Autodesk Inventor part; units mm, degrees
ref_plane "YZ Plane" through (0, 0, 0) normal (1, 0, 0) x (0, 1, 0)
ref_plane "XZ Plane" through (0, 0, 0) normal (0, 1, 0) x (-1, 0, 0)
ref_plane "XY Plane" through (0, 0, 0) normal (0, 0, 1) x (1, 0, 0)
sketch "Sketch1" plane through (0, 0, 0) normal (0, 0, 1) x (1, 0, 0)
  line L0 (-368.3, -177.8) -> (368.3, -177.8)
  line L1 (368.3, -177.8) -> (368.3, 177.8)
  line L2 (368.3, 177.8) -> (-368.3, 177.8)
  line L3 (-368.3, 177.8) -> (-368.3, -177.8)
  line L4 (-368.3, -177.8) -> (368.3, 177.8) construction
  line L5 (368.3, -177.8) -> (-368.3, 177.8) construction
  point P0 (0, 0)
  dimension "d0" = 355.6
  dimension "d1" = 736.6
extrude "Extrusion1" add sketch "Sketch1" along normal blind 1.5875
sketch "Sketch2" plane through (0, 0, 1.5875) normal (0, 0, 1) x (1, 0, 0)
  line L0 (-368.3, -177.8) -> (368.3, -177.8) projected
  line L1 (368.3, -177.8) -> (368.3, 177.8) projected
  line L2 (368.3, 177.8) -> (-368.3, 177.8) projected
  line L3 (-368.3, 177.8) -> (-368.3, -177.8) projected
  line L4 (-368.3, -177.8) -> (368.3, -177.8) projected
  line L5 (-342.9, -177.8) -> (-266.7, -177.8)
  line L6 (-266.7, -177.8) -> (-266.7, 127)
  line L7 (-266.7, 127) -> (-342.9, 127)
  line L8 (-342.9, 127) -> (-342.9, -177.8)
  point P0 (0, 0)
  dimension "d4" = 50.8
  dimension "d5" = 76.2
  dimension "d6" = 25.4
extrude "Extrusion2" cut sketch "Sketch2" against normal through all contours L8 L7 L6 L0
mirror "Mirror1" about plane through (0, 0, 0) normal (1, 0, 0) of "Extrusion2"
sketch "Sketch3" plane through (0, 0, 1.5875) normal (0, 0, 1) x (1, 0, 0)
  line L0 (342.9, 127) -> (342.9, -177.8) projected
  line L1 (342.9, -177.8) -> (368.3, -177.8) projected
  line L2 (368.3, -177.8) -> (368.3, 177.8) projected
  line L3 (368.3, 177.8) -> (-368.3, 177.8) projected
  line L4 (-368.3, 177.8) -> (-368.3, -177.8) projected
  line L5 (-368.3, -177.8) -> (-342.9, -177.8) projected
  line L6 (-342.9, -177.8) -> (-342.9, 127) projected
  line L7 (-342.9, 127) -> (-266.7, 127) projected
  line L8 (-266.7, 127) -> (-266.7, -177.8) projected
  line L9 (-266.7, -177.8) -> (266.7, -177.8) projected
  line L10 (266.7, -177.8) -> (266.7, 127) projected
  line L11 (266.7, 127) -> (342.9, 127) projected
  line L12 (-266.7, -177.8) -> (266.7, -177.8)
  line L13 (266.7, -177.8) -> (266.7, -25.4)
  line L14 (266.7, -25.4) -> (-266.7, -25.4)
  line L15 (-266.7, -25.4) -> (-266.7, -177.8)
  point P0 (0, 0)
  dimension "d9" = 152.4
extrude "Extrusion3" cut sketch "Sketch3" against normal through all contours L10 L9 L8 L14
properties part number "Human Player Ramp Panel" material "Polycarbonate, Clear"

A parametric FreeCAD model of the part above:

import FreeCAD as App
import Part
import Sketcher
from FreeCAD import Vector
Q = App.Units.Quantity


def add_polygon(sketch, points):
    """Adds a closed chain of lines whose ends are joined by coincident constraints."""
    first, n = sketch.GeometryCount, len(points)
    for a, b in zip(points, points[1:] + points[:1]):
        sketch.addGeometry(Part.LineSegment(App.Vector(*a, 0), App.Vector(*b, 0)), False)
    for i in range(n):
        sketch.addConstraint(Sketcher.Constraint("Coincident", first + i, 2, first + (i + 1) % n, 1))

doc = App.newDocument("Part")
body = doc.addObject("PartDesign::Body", "Body")

sketch1 = body.newObject("Sketcher::SketchObject", "Sketch")
sketch1.AttachmentSupport = (doc.getObject("XY_Plane"), [""])
sketch1.MapMode = "FlatFace"
add_polygon(sketch1, [(-368, 178), (-368, -178), (368, -178), (368, 178)])
sketch1.addConstraint(Sketcher.Constraint("Vertical", 0))
sketch1.addConstraint(Sketcher.Constraint("Horizontal", 1))
sketch1.addConstraint(Sketcher.Constraint("Vertical", 2))
sketch1.addConstraint(Sketcher.Constraint("Horizontal", 3))
sketch1.addConstraint(Sketcher.Constraint("Symmetric", 0, 2, 2, 2, -1, 1))
sketch1.addConstraint(Sketcher.Constraint("DistanceX", 1, 1, 1, 2, Q("29 in")))
sketch1.addConstraint(Sketcher.Constraint("DistanceY", 0, 2, 0, 1, Q("14 in")))
pad1 = body.newObject("PartDesign::Pad", "Pad")
pad1.Profile = sketch1
pad1.Length = Q("0.0625 in")

sketch2 = body.newObject("Sketcher::SketchObject", "Sketch001")
sketch2.AttachmentSupport = (doc.getObject("XY_Plane"), [""])
sketch2.MapMode = "FlatFace"
sketch2.AttachmentOffset = App.Placement(Vector(0, 0, 0.0625 * 25.4), App.Rotation())
add_polygon(sketch2, [(-343, 127), (-343, -178), (-267, -178), (-267, 127)])
sketch2.addConstraint(Sketcher.Constraint("Vertical", 0))
sketch2.addConstraint(Sketcher.Constraint("Horizontal", 1))
sketch2.addConstraint(Sketcher.Constraint("Vertical", 2))
sketch2.addConstraint(Sketcher.Constraint("Horizontal", 3))
sketch2.addConstraint(Sketcher.Constraint("DistanceX", 1, 1, 1, 2, Q("3 in")))
sketch2.addConstraint(Sketcher.Constraint("DistanceY", 0, 2, 0, 1, Q("12 in")))
sketch2.addConstraint(Sketcher.Constraint("DistanceY", 0, 2, -1, 1, Q("7 in")))
sketch2.addConstraint(Sketcher.Constraint("DistanceX", 0, 2, -1, 1, Q("13.5 in")))
pocket1 = body.newObject("PartDesign::Pocket", "Pocket")
pocket1.Profile = sketch2
pocket1.Type = "ThroughAll"
doc.recompute()

mirrored = body.newObject("PartDesign::Mirrored", "Mirrored")
mirrored.Originals = [pocket1]
mirrored.MirrorPlane = (doc.getObject("YZ_Plane"), [""])
body.Tip = mirrored

sketch3 = body.newObject("Sketcher::SketchObject", "Sketch002")
sketch3.AttachmentSupport = (doc.getObject("XY_Plane"), [""])
sketch3.MapMode = "FlatFace"
sketch3.AttachmentOffset = App.Placement(Vector(0, 0, 0.0625 * 25.4), App.Rotation())
add_polygon(sketch3, [(267, -178), (267, -25), (-267, -25), (-267, -178)])
sketch3.addConstraint(Sketcher.Constraint("Vertical", 0))
sketch3.addConstraint(Sketcher.Constraint("Horizontal", 1))
sketch3.addConstraint(Sketcher.Constraint("Vertical", 2))
sketch3.addConstraint(Sketcher.Constraint("Horizontal", 3))
sketch3.addConstraint(Sketcher.Constraint("DistanceY", 0, 1, 0, 2, Q("6 in")))
sketch3.addConstraint(Sketcher.Constraint("DistanceX", 1, 2, 1, 1, Q("21 in")))
sketch3.addConstraint(Sketcher.Constraint("DistanceY", 0, 2, -1, 1, Q("1 in")))
sketch3.addConstraint(Sketcher.Constraint("DistanceX", -1, 1, 0, 2, Q("10.5 in")))
pocket2 = body.newObject("PartDesign::Pocket", "Pocket001")
pocket2.Profile = sketch3
pocket2.Type = "ThroughAll"

doc.recompute()
